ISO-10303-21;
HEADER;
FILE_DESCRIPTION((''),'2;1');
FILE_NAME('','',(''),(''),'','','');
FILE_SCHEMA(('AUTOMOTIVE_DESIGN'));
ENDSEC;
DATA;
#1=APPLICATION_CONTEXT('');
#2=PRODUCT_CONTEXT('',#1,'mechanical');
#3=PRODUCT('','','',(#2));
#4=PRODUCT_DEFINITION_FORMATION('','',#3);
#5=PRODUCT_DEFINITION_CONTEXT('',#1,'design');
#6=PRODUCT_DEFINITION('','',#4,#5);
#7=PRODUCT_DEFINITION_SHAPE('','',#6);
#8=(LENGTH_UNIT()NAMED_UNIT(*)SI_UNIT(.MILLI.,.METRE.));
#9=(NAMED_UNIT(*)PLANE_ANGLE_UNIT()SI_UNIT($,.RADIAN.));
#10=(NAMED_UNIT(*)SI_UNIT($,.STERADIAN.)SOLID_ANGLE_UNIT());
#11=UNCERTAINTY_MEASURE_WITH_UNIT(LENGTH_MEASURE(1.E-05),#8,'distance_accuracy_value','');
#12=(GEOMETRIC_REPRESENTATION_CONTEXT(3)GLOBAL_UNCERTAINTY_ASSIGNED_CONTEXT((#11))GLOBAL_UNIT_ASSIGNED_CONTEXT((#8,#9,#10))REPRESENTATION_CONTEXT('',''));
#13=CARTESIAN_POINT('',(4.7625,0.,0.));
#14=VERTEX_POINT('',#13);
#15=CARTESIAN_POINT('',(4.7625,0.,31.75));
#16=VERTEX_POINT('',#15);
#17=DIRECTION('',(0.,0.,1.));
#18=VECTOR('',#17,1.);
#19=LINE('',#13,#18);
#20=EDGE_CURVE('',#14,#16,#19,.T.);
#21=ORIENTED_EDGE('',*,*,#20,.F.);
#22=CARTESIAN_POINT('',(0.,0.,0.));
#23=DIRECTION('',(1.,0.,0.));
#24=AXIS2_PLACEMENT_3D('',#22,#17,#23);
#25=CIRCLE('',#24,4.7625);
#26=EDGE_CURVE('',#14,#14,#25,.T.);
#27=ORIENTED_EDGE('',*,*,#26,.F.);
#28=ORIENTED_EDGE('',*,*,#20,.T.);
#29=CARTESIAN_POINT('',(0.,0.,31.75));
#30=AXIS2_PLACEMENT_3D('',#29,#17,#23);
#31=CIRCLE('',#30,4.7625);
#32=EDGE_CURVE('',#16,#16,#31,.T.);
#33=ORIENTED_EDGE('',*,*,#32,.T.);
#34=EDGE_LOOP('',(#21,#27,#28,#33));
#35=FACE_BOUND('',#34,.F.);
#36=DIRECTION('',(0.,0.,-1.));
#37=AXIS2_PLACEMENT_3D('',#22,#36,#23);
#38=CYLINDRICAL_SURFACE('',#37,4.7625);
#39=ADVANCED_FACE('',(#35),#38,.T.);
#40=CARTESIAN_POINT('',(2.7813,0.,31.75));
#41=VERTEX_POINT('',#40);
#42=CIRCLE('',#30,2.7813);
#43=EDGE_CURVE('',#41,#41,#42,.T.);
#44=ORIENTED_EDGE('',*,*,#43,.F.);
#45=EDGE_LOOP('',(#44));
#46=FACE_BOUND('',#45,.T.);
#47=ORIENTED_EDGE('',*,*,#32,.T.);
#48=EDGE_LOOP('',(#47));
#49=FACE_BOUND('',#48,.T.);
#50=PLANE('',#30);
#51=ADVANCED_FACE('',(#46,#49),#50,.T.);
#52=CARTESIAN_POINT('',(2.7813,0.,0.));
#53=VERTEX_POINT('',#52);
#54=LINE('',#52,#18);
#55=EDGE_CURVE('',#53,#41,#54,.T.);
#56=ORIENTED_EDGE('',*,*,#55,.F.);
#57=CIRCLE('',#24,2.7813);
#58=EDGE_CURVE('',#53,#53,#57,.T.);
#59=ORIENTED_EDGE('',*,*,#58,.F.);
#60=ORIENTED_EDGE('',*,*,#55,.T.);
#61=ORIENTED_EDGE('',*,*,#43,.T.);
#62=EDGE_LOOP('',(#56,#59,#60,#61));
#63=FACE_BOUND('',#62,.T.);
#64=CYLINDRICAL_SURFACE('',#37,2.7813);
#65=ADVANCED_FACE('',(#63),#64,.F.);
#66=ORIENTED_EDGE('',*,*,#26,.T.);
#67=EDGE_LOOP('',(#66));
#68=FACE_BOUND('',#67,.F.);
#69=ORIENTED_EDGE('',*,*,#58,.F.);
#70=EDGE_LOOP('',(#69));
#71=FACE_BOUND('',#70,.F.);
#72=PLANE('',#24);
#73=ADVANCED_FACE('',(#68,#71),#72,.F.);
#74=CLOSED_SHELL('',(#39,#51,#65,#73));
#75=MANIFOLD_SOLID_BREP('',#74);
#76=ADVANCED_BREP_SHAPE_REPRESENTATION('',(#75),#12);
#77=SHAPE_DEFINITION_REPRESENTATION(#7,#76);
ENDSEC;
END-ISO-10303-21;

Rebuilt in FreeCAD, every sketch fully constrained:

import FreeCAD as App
import Part
import Sketcher
Q = App.Units.Quantity

doc = App.newDocument("Part")
params = doc.addObject("Spreadsheet::Sheet", "Params")
for row, (alias, value) in enumerate([
    ("sketch1_diameter", "0.375 in"),
    ("sketch1_diameter2", "0.219 in"),
    ("pad1_length", "1.25 in"),
], start=1):
    params.set(f"A{row}", alias)
    params.set(f"B{row}", "=" + value)
    params.setAlias(f"B{row}", alias)

body = doc.addObject("PartDesign::Body", "Body")

sketch1 = body.newObject("Sketcher::SketchObject", "Sketch")
sketch1.AttachmentSupport = (doc.getObject("XY_Plane"), [""])
sketch1.MapMode = "FlatFace"
sketch1.addGeometry([
    Part.Circle(App.Vector(0, 0, 0), App.Vector(0, 0, 1), 4.8),
    Part.Circle(App.Vector(0, 0, 0), App.Vector(0, 0, 1), 2.8),
], False)
sketch1.addConstraint([
    Sketcher.Constraint("Coincident", 0, 3, -1, 1),
    Sketcher.Constraint("Coincident", 1, 3, -1, 1),
    Sketcher.Constraint("Diameter", 0, Q("0.375 in")),
    Sketcher.Constraint("Diameter", 1, Q("0.219 in")),
])
sketch1.setExpression("Constraints[2]", "Params.sketch1_diameter")
sketch1.setExpression("Constraints[3]", "Params.sketch1_diameter2")
pad1 = body.newObject("PartDesign::Pad", "Pad")
pad1.Profile = sketch1
pad1.setExpression("Length", "Params.pad1_length")

doc.recompute()
